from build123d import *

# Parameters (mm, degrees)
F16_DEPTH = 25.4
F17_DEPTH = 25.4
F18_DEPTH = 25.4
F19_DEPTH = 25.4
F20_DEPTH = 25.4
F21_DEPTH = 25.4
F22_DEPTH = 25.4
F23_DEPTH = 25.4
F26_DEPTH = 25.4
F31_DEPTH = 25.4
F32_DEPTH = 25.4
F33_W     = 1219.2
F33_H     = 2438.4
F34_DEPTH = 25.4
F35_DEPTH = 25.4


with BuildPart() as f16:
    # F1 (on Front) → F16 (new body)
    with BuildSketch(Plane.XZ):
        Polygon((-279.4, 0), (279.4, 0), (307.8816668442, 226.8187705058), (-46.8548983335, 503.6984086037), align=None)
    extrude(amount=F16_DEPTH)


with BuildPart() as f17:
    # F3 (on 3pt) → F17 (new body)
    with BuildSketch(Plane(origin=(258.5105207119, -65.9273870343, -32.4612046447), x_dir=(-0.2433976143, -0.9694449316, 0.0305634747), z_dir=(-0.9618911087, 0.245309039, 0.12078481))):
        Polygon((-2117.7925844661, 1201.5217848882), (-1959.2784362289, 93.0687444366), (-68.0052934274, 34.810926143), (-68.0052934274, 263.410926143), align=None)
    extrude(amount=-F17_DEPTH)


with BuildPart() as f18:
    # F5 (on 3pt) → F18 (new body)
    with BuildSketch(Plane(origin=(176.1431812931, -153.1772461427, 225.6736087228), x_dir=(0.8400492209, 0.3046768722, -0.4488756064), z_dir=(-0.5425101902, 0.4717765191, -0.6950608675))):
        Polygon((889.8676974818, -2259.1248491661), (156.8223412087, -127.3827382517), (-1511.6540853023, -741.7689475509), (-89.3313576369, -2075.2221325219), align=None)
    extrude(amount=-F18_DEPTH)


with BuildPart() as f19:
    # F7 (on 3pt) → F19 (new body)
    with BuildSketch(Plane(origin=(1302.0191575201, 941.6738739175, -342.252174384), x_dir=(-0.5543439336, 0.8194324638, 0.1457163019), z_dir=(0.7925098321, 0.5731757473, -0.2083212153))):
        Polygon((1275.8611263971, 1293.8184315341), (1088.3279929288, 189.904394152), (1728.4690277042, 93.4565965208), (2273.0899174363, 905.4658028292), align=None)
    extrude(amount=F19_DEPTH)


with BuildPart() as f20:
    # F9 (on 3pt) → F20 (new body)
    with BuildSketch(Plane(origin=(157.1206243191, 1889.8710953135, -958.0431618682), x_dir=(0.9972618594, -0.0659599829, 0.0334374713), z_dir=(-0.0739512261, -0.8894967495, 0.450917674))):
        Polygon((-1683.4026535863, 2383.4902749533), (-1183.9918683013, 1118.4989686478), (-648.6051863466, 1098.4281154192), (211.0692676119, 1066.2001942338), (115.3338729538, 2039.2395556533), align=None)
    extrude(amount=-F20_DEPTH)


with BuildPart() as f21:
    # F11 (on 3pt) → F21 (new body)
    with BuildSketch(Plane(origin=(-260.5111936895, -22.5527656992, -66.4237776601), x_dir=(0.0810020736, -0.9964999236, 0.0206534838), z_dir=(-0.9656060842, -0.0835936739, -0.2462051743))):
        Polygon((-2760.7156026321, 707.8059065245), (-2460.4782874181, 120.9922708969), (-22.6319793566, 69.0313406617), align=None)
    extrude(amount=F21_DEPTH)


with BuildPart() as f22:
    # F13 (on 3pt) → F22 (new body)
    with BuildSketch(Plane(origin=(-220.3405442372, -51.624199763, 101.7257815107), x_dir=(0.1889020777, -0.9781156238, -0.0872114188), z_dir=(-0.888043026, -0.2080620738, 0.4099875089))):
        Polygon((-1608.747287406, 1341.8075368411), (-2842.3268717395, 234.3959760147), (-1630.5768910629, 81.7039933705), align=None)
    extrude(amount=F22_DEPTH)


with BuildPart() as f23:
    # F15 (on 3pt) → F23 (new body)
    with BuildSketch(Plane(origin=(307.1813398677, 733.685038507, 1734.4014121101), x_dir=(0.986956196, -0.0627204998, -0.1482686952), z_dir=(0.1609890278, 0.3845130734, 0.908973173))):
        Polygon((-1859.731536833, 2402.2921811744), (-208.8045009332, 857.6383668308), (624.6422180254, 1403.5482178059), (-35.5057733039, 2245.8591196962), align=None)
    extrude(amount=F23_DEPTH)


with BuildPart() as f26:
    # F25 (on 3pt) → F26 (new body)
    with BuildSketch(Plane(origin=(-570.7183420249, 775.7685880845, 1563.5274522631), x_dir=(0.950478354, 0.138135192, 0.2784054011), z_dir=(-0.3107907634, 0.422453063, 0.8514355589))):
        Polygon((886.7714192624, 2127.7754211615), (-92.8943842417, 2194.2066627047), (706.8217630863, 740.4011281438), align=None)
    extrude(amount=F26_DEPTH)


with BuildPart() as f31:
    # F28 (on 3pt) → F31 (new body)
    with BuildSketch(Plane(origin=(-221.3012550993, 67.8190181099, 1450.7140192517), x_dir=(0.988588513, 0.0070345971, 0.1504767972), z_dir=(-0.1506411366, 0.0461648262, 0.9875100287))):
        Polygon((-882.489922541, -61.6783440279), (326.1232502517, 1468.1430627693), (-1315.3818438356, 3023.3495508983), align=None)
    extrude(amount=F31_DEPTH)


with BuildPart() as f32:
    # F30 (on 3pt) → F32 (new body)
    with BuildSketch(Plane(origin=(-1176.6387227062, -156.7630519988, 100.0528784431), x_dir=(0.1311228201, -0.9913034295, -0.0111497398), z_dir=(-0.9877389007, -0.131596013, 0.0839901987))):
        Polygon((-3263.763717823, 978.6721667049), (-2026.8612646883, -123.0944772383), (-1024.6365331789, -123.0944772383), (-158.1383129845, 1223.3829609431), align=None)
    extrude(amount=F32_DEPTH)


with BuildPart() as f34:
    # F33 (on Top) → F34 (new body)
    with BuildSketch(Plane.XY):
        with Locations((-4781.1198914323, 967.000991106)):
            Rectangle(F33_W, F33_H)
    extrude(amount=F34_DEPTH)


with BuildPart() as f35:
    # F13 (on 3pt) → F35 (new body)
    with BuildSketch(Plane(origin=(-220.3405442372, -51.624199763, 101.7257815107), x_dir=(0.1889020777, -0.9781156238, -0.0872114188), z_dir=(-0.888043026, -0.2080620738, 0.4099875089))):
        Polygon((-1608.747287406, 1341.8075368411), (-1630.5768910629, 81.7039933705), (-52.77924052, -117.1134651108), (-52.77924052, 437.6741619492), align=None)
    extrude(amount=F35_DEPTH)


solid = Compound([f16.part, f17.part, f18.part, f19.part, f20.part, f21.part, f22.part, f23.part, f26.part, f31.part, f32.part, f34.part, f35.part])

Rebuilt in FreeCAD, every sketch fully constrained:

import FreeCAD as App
import Part
import Sketcher
Q = App.Units.Quantity


def add_polygon(sketch, points):
    """Adds a closed chain of lines whose ends are joined by coincident constraints."""
    first, n = sketch.GeometryCount, len(points)
    for a, b in zip(points, points[1:] + points[:1]):
        sketch.addGeometry(Part.LineSegment(App.Vector(*a, 0), App.Vector(*b, 0)), False)
    for i in range(n):
        sketch.addConstraint(Sketcher.Constraint("Coincident", first + i, 2, first + (i + 1) % n, 1))

doc = App.newDocument("Part")
body = doc.addObject("PartDesign::Body", "Body")

# Sketch on XZ plane
sketch1 = doc.addObject("Sketcher::SketchObject", "Sketch")
body.addObject(sketch1)
sketch1.AttachmentSupport = (doc.XZ_Plane, [""])
sketch1.MapMode = "FlatFace"
add_polygon(sketch1, [(-279.4, 0), (279.4, 0), (307.881667, 226.818771), (-46.854898, 503.698409)])  # lines 0-3
sketch1.addConstraint(Sketcher.Constraint("Horizontal", 0))
sketch1.addConstraint(Sketcher.Constraint("Symmetric", 0, 2, 3, 2, -1, 1))
sketch1.addConstraint(Sketcher.Constraint("DistanceX", 0, 1, 0, 2, Q("22 in")))
sketch1.addConstraint(Sketcher.Constraint("Distance", 1, Q("9 in")))
sketch1.addConstraint(Sketcher.Constraint("DistanceX", 2, 2, -1, 1, Q("46.854898 mm")))
sketch1.addConstraint(Sketcher.Constraint("DistanceY", -1, 1, 1, 2, Q("226.818771 mm")))
sketch1.addConstraint(Sketcher.Constraint("DistanceY", -1, 1, 2, 2, Q("503.698409 mm")))
pad1 = doc.addObject("PartDesign::Pad", "Pad")
body.addObject(pad1)
pad1.Profile = sketch1
pad1.Length = Q("1 in")
body2 = doc.addObject("PartDesign::Body", "Body001")

# Sketch on an angled plane
sketch2 = doc.addObject("Sketcher::SketchObject", "Sketch001")
body2.addObject(sketch2)
sketch2.Placement = App.Placement(App.Vector(258.510521, -65.927387, -32.461205), App.Rotation(App.Vector(-0.243397614, -0.969444932, 0.030563475), App.Vector(0.124591719, 0, 0.992208096), App.Vector(-0.961891109, 0.245309039, 0.12078481), "ZXY"))
add_polygon(sketch2, [(-2117.792586, 1201.521786), (-1959.278438, 93.068745), (-68.005293, 34.810926), (-68.005293, 263.410926)])  # lines 0-3
sketch2.addConstraint(Sketcher.Constraint("Vertical", 2))
sketch2.addConstraint(Sketcher.Constraint("DistanceY", 2, 1, 2, 2, Q("9 in")))
sketch2.addConstraint(Sketcher.Constraint("DistanceY", 1, 2, 0, 2, Q("58.257818 mm")))
sketch2.addConstraint(Sketcher.Constraint("DistanceX", 3, 2, 0, 2, Q("158.514148 mm")))
sketch2.addConstraint(Sketcher.Constraint("DistanceY", 0, 2, 3, 2, Q("1108.453042 mm")))
sketch2.addConstraint(Sketcher.Constraint("Distance", 1, Q("1892.170203 mm")))
sketch2.addConstraint(Sketcher.Constraint("DistanceX", 0, 2, -1, 1, Q("1959.278438 mm")))
sketch2.addConstraint(Sketcher.Constraint("DistanceY", -1, 1, 0, 2, Q("93.068745 mm")))
pad2 = doc.addObject("PartDesign::Pad", "Pad001")
body2.addObject(pad2)
pad2.Profile = sketch2
pad2.Length = Q("1 in")
pad2.Reversed = True
body3 = doc.addObject("PartDesign::Body", "Body002")

# Sketch on an angled plane
sketch3 = doc.addObject("Sketcher::SketchObject", "Sketch002")
body3.addObject(sketch3)
sketch3.Placement = App.Placement(App.Vector(176.143181, -153.177246, 225.673609), App.Rotation(App.Vector(0.840049221, 0.304676872, -0.448875606), App.Vector(0, -0.827404931, -0.561605805), App.Vector(-0.54251019, 0.471776519, -0.695060868), "ZXY"))
add_polygon(sketch3, [(889.867697, -2259.124849), (156.822341, -127.382738), (-1511.654085, -741.768948), (-89.331358, -2075.222133)])  # lines 0-3
sketch3.addConstraint(Sketcher.Constraint("Distance", 1, Q("70 in")))
sketch3.addConstraint(Sketcher.Constraint("DistanceX", 2, 2, 0, 2, Q("246.153699 mm")))
sketch3.addConstraint(Sketcher.Constraint("DistanceY", 3, 2, 1, 2, Q("1517.355902 mm")))
sketch3.addConstraint(Sketcher.Constraint("DistanceX", -1, 1, 0, 2, Q("156.822341 mm")))
sketch3.addConstraint(Sketcher.Constraint("DistanceY", 0, 2, -1, 1, Q("127.382738 mm")))
sketch3.addConstraint(Sketcher.Constraint("DistanceY", 3, 2, -1, 1, Q("2259.124849 mm")))
sketch3.addConstraint(Sketcher.Constraint("Distance", 0, Q("2254.258176 mm")))
sketch3.addConstraint(Sketcher.Constraint("Distance", 2, Q("1949.640823 mm")))
pad3 = doc.addObject("PartDesign::Pad", "Pad002")
body3.addObject(pad3)
pad3.Profile = sketch3
pad3.Length = Q("1 in")
pad3.Reversed = True
body4 = doc.addObject("PartDesign::Body", "Body003")

# Sketch on an angled plane
sketch4 = doc.addObject("Sketcher::SketchObject", "Sketch003")
body4.addObject(sketch4)
sketch4.Placement = App.Placement(App.Vector(1302.019158, 941.673874, -342.252174), App.Rotation(App.Vector(-0.554343934, 0.819432464, 0.145716302), App.Vector(0.254226217, 0, 0.967144783), App.Vector(0.792509832, 0.573175747, -0.208321215), "ZXY"))
add_polygon(sketch4, [(1275.861128, 1293.818432), (1088.327994, 189.904394), (1728.469029, 93.456597), (2273.089919, 905.465803)])  # lines 0-3
sketch4.addConstraint(Sketcher.Constraint("DistanceX", 3, 2, 1, 2, Q("452.607902 mm")))
sketch4.addConstraint(Sketcher.Constraint("Distance", 1, Q("647.365988 mm")))
sketch4.addConstraint(Sketcher.Constraint("Distance", 3, Q("1070.17897 mm")))
sketch4.addConstraint(Sketcher.Constraint("DistanceX", -1, 1, 1, 2, Q("1728.469029 mm")))
sketch4.addConstraint(Sketcher.Constraint("DistanceX", -1, 1, 2, 2, Q("2273.089919 mm")))
sketch4.addConstraint(Sketcher.Constraint("DistanceY", -1, 1, 3, 2, Q("1293.818432 mm")))
sketch4.addConstraint(Sketcher.Constraint("DistanceY", 0, 2, 2, 2, Q("715.561409 mm")))
sketch4.addConstraint(Sketcher.Constraint("Distance", 0, Q("1119.729824 mm")))
pad4 = doc.addObject("PartDesign::Pad", "Pad003")
body4.addObject(pad4)
pad4.Profile = sketch4
pad4.Length = Q("1 in")
body5 = doc.addObject("PartDesign::Body", "Body004")

# Sketch on an angled plane
sketch5 = doc.addObject("Sketcher::SketchObject", "Sketch004")
body5.addObject(sketch5)
sketch5.Placement = App.Placement(App.Vector(157.120624, 1889.871095, -958.043162), App.Rotation(App.Vector(0.997261859, -0.065959983, 0.033437471), App.Vector(0, 0.45215574, 0.891939004), App.Vector(-0.073951226, -0.88949675, 0.450917674), "ZXY"))
add_polygon(sketch5, [(-1683.402652, 2383.490275), (-1183.991867, 1118.498969), (211.069267, 1066.200194), (115.333873, 2039.239556)])  # lines 0-3
sketch5.addConstraint(Sketcher.Constraint("DistanceY", -1, 1, 3, 2, Q("93.8381998 in")))
sketch5.addConstraint(Sketcher.Constraint("Distance", 3, Q("1831.382441 mm")))
sketch5.addConstraint(Sketcher.Constraint("DistanceY", -1, 1, 0, 2, Q("1118.498969 mm")))
sketch5.addConstraint(Sketcher.Constraint("DistanceY", 1, 2, 2, 2, Q("973.039361 mm")))
sketch5.addConstraint(Sketcher.Constraint("DistanceX", 0, 2, 2, 2, Q("1299.32574 mm")))
sketch5.addConstraint(Sketcher.Constraint("DistanceY", 2, 2, 3, 2, Q("344.250719 mm")))
sketch5.addConstraint(Sketcher.Constraint("DistanceX", 3, 2, 1, 2, Q("1894.47192 mm")))
sketch5.addConstraint(Sketcher.Constraint("DistanceX", 0, 2, -1, 1, Q("1183.991867 mm")))
pad5 = doc.addObject("PartDesign::Pad", "Pad004")
body5.addObject(pad5)
pad5.Profile = sketch5
pad5.Length = Q("1 in")
pad5.Reversed = True
body6 = doc.addObject("PartDesign::Body", "Body005")

# Sketch on an angled plane
sketch6 = doc.addObject("Sketcher::SketchObject", "Sketch005")
body6.addObject(sketch6)
sketch6.Placement = App.Placement(App.Vector(-260.511194, -22.552766, -66.423778), App.Rotation(App.Vector(0.081002074, -0.996499924, 0.020653484), App.Vector(-0.247069938, 0, 0.96899765), App.Vector(-0.965606084, -0.083593674, -0.246205174), "ZXY"))
add_polygon(sketch6, [(-2760.715605, 707.805907), (-2460.47829, 120.992271), (-22.631979, 69.031341)])  # lines 0-2
sketch6.addConstraint(Sketcher.Constraint("Distance", 1, Q("96.0000001 in")))
sketch6.addConstraint(Sketcher.Constraint("Distance", 2, Q("2811.607172 mm")))
sketch6.addConstraint(Sketcher.Constraint("DistanceX", 0, 2, -1, 1, Q("2460.47829 mm")))
sketch6.addConstraint(Sketcher.Constraint("DistanceY", -1, 1, 0, 2, Q("120.992271 mm")))
sketch6.addConstraint(Sketcher.Constraint("DistanceX", 1, 2, -1, 1, Q("22.631979 mm")))
sketch6.addConstraint(Sketcher.Constraint("Distance", 0, Q("659.160594 mm")))
pad6 = doc.addObject("PartDesign::Pad", "Pad005")
body6.addObject(pad6)
pad6.Profile = sketch6
pad6.Length = Q("1 in")
body7 = doc.addObject("PartDesign::Body", "Body006")

# Sketch on an angled plane
sketch7 = doc.addObject("Sketcher::SketchObject", "Sketch006")
body7.addObject(sketch7)
sketch7.Placement = App.Placement(App.Vector(-220.340544, -51.6242, 101.725782), App.Rotation(App.Vector(0.188902078, -0.978115624, -0.087211419), App.Vector(0.419160577, 0, 0.907912117), App.Vector(-0.888043026, -0.208062074, 0.409987509), "ZXY"))
add_polygon(sketch7, [(-1608.747288, 1341.807538), (-2842.326873, 234.395976), (-1630.576892, 81.703993)])  # lines 0-2
sketch7.addConstraint(Sketcher.Constraint("Distance", 0, Q("1657.733079 mm")))
sketch7.addConstraint(Sketcher.Constraint("Distance", 1, Q("1221.332411 mm")))
sketch7.addConstraint(Sketcher.Constraint("DistanceX", 2, 2, -1, 1, Q("1608.747288 mm")))
sketch7.addConstraint(Sketcher.Constraint("DistanceX", 0, 2, 1, 2, Q("1211.749981 mm")))
sketch7.addConstraint(Sketcher.Constraint("DistanceY", 0, 2, 2, 2, Q("1107.411562 mm")))
sketch7.addConstraint(Sketcher.Constraint("DistanceY", -1, 1, 0, 2, Q("234.395976 mm")))
pad7 = doc.addObject("PartDesign::Pad", "Pad006")
body7.addObject(pad7)
pad7.Profile = sketch7
pad7.Length = Q("1 in")
body8 = doc.addObject("PartDesign::Body", "Body007")

# Sketch on an angled plane
sketch8 = doc.addObject("Sketcher::SketchObject", "Sketch007")
body8.addObject(sketch8)
sketch8.Placement = App.Placement(App.Vector(307.18134, 733.685039, 1734.401412), App.Rotation(App.Vector(0.986956196, -0.0627205, -0.148268695), App.Vector(0, 0.920986338, -0.389594872), App.Vector(0.160989028, 0.384513073, 0.908973173), "ZXY"))
add_polygon(sketch8, [(-1859.731537, 2402.29218), (-208.804501, 857.638366), (624.642218, 1403.548217), (-35.505773, 2245.859119)])  # lines 0-3
sketch8.addConstraint(Sketcher.Constraint("DistanceX", 0, 2, -1, 1, Q("208.804501 mm")))
sketch8.addConstraint(Sketcher.Constraint("DistanceY", 1, 2, 2, 2, Q("842.310902 mm")))
sketch8.addConstraint(Sketcher.Constraint("Distance", 0, Q("2260.866091 mm")))
sketch8.addConstraint(Sketcher.Constraint("Distance", 2, Q("1070.178969 mm")))
sketch8.addConstraint(Sketcher.Constraint("Distance", 3, Q("1830.92079 mm")))
sketch8.addConstraint(Sketcher.Constraint("DistanceY", -1, 1, 2, 2, Q("2245.859119 mm")))
sketch8.addConstraint(Sketcher.Constraint("DistanceY", -1, 1, 3, 2, Q("2402.29218 mm")))
sketch8.addConstraint(Sketcher.Constraint("DistanceX", 0, 2, 1, 2, Q("833.446719 mm")))
pad8 = doc.addObject("PartDesign::Pad", "Pad007")
body8.addObject(pad8)
pad8.Profile = sketch8
pad8.Length = Q("1 in")
body9 = doc.addObject("PartDesign::Body", "Body008")

# Sketch on an angled plane
sketch9 = doc.addObject("Sketcher::SketchObject", "Sketch008")
body9.addObject(sketch9)
sketch9.Placement = App.Placement(App.Vector(-570.718342, 775.768588, 1563.527452), App.Rotation(App.Vector(0.950478354, 0.138135192, 0.278405401), App.Vector(0, 0.895796896, -0.444463634), App.Vector(-0.310790763, 0.422453063, 0.851435559), "ZXY"))
add_polygon(sketch9, [(886.771419, 2127.775421), (-92.894384, 2194.206663), (706.821763, 740.401128)])  # lines 0-2
sketch9.addConstraint(Sketcher.Constraint("Distance", 2, Q("1398.995821 mm")))
sketch9.addConstraint(Sketcher.Constraint("DistanceY", -1, 1, 1, 2, Q("740.401128 mm")))
sketch9.addConstraint(Sketcher.Constraint("DistanceX", -1, 1, 2, 2, Q("886.771419 mm")))
sketch9.addConstraint(Sketcher.Constraint("DistanceY", -1, 1, 2, 2, Q("2127.775421 mm")))
sketch9.addConstraint(Sketcher.Constraint("DistanceY", 2, 2, 0, 2, Q("66.431242 mm")))
sketch9.addConstraint(Sketcher.Constraint("Distance", 0, Q("981.915575 mm")))
pad9 = doc.addObject("PartDesign::Pad", "Pad008")
body9.addObject(pad9)
pad9.Profile = sketch9
pad9.Length = Q("1 in")
body10 = doc.addObject("PartDesign::Body", "Body009")

# Sketch on an angled plane
sketch10 = doc.addObject("Sketcher::SketchObject", "Sketch009")
body10.addObject(sketch10)
sketch10.Placement = App.Placement(App.Vector(-221.301255, 67.819018, 1450.714019), App.Rotation(App.Vector(0.988588513, 0.007034597, 0.150476797), App.Vector(0, 0.998909067, -0.046697716), App.Vector(-0.150641137, 0.046164826, 0.987510029), "ZXY"))
add_polygon(sketch10, [(-882.489923, -61.678344), (326.12325, 1468.143064), (-1315.381844, 3023.349553)])  # lines 0-2
sketch10.addConstraint(Sketcher.Constraint("Angle", 0, Q("51.690013 deg")))
sketch10.addConstraint(Sketcher.Constraint("Distance", 2, Q("3115.251602 mm")))
sketch10.addConstraint(Sketcher.Constraint("Distance", 1, Q("2261.239969 mm")))
sketch10.addConstraint(Sketcher.Constraint("DistanceX", -1, 1, 0, 2, Q("326.12325 mm")))
sketch10.addConstraint(Sketcher.Constraint("DistanceY", 0, 2, 1, 2, Q("1555.206489 mm")))
sketch10.addConstraint(Sketcher.Constraint("DistanceY", -1, 1, 0, 2, Q("1468.143064 mm")))
pad10 = doc.addObject("PartDesign::Pad", "Pad009")
body10.addObject(pad10)
pad10.Profile = sketch10
pad10.Length = Q("1 in")
body11 = doc.addObject("PartDesign::Body", "Body010")

# Sketch on an angled plane
sketch11 = doc.addObject("Sketcher::SketchObject", "Sketch010")
body11.addObject(sketch11)
sketch11.Placement = App.Placement(App.Vector(-1176.638723, -156.763052, 100.052878), App.Rotation(App.Vector(0.13112282, -0.99130343, -0.01114974), App.Vector(0.084727034, 0, 0.996404201), App.Vector(-0.987738901, -0.131596013, 0.083990199), "ZXY"))
add_polygon(sketch11, [(-3263.763721, 978.672168), (-2026.861267, -123.094477), (-1024.636534, -123.094477), (-158.138313, 1223.382963)])  # lines 0-3
sketch11.addConstraint(Sketcher.Constraint("Horizontal", 1))
sketch11.addConstraint(Sketcher.Constraint("Distance", 0, Q("1656.447229 mm")))
sketch11.addConstraint(Sketcher.Constraint("DistanceX", 1, 1, 1, 2, Q("1002.224732 mm")))
sketch11.addConstraint(Sketcher.Constraint("DistanceX", 3, 2, -1, 1, Q("3263.763721 mm")))
sketch11.addConstraint(Sketcher.Constraint("DistanceY", -1, 1, 3, 2, Q("978.672168 mm")))
sketch11.addConstraint(Sketcher.Constraint("DistanceX", 1, 2, 2, 2, Q("866.498221 mm")))
sketch11.addConstraint(Sketcher.Constraint("DistanceY", 1, 2, 2, 2, Q("1346.47744 mm")))
sketch11.addConstraint(Sketcher.Constraint("Distance", 3, Q("3115.251602 mm")))
pad11 = doc.addObject("PartDesign::Pad", "Pad010")
body11.addObject(pad11)
pad11.Profile = sketch11
pad11.Length = Q("1 in")
body12 = doc.addObject("PartDesign::Body", "Body011")

# Sketch on XY plane
sketch12 = doc.addObject("Sketcher::SketchObject", "Sketch011")
body12.addObject(sketch12)
sketch12.AttachmentSupport = (doc.getObject("XY_Plane011"), [""])
sketch12.MapMode = "FlatFace"
add_polygon(sketch12, [(-5390.719891, 2186.200991), (-5390.719891, -252.199009), (-4171.519891, -252.199009), (-4171.519891, 2186.200991)])  # lines 0-3
sketch12.addConstraint(Sketcher.Constraint("Vertical", 0))
sketch12.addConstraint(Sketcher.Constraint("Horizontal", 1))
sketch12.addConstraint(Sketcher.Constraint("Vertical", 2))
sketch12.addConstraint(Sketcher.Constraint("Horizontal", 3))
sketch12.addConstraint(Sketcher.Constraint("DistanceX", 1, 1, 1, 2, Q("48 in")))
sketch12.addConstraint(Sketcher.Constraint("DistanceY", 0, 2, 0, 1, Q("96 in")))
sketch12.addConstraint(Sketcher.Constraint("DistanceX", 0, 2, -1, 1, Q("5390.719891 mm")))
sketch12.addConstraint(Sketcher.Constraint("DistanceY", 0, 2, -1, 1, Q("252.199009 mm")))
pad12 = doc.addObject("PartDesign::Pad", "Pad011")
body12.addObject(pad12)
pad12.Profile = sketch12
pad12.Length = Q("1 in")
body13 = doc.addObject("PartDesign::Body", "Body012")

# Sketch on an angled plane
sketch13 = doc.addObject("Sketcher::SketchObject", "Sketch012")
body13.addObject(sketch13)
sketch13.Placement = App.Placement(App.Vector(-220.340544, -51.6242, 101.725782), App.Rotation(App.Vector(0.188902078, -0.978115624, -0.087211419), App.Vector(0.419160577, 0, 0.907912117), App.Vector(-0.888043026, -0.208062074, 0.409987509), "ZXY"))
add_polygon(sketch13, [(-1608.747288, 1341.807538), (-1630.576892, 81.703993), (-52.779241, -117.113465), (-52.779241, 437.674162)])  # lines 0-3
sketch13.addConstraint(Sketcher.Constraint("Vertical", 2))
sketch13.addConstraint(Sketcher.Constraint("Distance", 1, Q("1590.27476 mm")))
sketch13.addConstraint(Sketcher.Constraint("DistanceY", 2, 1, 2, 2, Q("554.787627 mm")))
sketch13.addConstraint(Sketcher.Constraint("DistanceX", 1, 2, -1, 1, Q("52.779241 mm")))
sketch13.addConstraint(Sketcher.Constraint("DistanceX", 3, 2, -1, 1, Q("1608.747288 mm")))
sketch13.addConstraint(Sketcher.Constraint("DistanceX", 0, 2, 1, 2, Q("1577.797651 mm")))
sketch13.addConstraint(Sketcher.Constraint("Distance", 0, Q("1260.292615 mm")))
sketch13.addConstraint(Sketcher.Constraint("DistanceY", -1, 1, 0, 2, Q("81.703993 mm")))
pad13 = doc.addObject("PartDesign::Pad", "Pad012")
body13.addObject(pad13)
pad13.Profile = sketch13
pad13.Length = Q("1 in")

doc.recompute()
